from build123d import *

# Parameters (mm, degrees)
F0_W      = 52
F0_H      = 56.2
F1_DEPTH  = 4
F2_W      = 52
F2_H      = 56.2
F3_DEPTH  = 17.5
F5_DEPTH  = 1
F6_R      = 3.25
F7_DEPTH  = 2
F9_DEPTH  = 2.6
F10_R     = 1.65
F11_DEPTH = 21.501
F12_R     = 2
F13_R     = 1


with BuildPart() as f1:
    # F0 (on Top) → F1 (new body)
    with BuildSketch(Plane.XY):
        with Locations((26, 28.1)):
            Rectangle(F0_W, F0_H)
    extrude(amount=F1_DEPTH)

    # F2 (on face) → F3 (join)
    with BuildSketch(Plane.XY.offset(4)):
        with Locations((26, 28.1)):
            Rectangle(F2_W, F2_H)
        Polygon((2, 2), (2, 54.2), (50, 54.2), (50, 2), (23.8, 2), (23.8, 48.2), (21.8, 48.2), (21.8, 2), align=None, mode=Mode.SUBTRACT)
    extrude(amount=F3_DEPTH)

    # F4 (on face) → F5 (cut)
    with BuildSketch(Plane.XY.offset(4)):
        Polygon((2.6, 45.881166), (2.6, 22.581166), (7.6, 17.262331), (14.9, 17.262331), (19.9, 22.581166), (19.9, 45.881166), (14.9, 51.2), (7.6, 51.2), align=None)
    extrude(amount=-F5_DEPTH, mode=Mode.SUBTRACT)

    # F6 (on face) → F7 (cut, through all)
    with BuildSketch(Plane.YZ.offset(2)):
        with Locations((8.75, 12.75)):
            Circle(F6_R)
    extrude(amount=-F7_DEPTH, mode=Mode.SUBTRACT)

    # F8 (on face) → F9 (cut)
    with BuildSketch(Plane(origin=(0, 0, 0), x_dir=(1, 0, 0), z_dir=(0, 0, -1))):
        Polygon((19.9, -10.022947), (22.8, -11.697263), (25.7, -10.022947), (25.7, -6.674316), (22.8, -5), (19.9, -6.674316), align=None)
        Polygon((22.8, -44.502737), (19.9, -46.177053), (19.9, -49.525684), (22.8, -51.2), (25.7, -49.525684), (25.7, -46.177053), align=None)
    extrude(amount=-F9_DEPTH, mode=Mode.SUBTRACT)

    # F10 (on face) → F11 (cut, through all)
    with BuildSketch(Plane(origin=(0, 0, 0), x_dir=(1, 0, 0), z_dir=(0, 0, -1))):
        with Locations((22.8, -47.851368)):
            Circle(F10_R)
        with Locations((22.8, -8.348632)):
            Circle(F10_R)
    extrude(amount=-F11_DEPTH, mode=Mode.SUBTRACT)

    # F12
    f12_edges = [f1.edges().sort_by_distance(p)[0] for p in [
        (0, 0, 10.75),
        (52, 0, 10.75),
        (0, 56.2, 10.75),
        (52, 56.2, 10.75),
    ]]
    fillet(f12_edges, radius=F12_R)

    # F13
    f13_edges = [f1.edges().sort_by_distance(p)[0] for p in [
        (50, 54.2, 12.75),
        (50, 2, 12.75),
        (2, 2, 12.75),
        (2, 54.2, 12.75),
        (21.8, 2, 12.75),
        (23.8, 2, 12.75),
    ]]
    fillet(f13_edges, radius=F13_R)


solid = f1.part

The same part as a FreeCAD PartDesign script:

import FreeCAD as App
import Part
import Sketcher
from FreeCAD import Vector
Q = App.Units.Quantity


def edges_at(feature, points):
    """Names of the edges that pass closest to the given points."""
    edges = feature.Shape.Edges
    near = lambda p: min(range(len(edges)), key=lambda i: edges[i].distToShape(Part.Vertex(*p))[0])
    return sorted({f"Edge{near(p) + 1}" for p in points})

doc = App.newDocument("Part")
body = doc.addObject("PartDesign::Body", "Body")

# Sketch on XY plane
sketch1 = body.newObject("Sketcher::SketchObject", "Sketch")
sketch1.AttachmentSupport = (doc.getObject("XY_Plane"), [""])
sketch1.MapMode = "FlatFace"
sketch1.addGeometry([
    Part.LineSegment(Vector(0, 56, 0), Vector(0, 0, 0)),
    Part.LineSegment(Vector(0, 0, 0), Vector(52, 0, 0)),
    Part.LineSegment(Vector(52, 0, 0), Vector(52, 56, 0)),
    Part.LineSegment(Vector(52, 56, 0), Vector(0, 56, 0)),
], False)
sketch1.addConstraint([
    Sketcher.Constraint("Coincident", 0, 2, 1, 1),
    Sketcher.Constraint("Coincident", 1, 2, 2, 1),
    Sketcher.Constraint("Coincident", 2, 2, 3, 1),
    Sketcher.Constraint("Coincident", 3, 2, 0, 1),
    Sketcher.Constraint("Vertical", 0),
    Sketcher.Constraint("Horizontal", 1),
    Sketcher.Constraint("Vertical", 2),
    Sketcher.Constraint("Horizontal", 3),
    Sketcher.Constraint("Coincident", 0, 2, -1, 1),
    Sketcher.Constraint("DistanceX", 1, 1, 1, 2, 52.0),
    Sketcher.Constraint("DistanceY", 0, 2, 0, 1, 56.2),
])
pad1 = body.newObject("PartDesign::Pad", "Pad")
pad1.Profile = sketch1
pad1.Length = 4

# Sketch on XY plane
sketch2 = body.newObject("Sketcher::SketchObject", "Sketch001")
sketch2.AttachmentSupport = (doc.getObject("XY_Plane"), [""])
sketch2.MapMode = "FlatFace"
sketch2.AttachmentOffset = App.Placement(Vector(0, 0, 4), App.Rotation())
sketch2.addGeometry([
    Part.LineSegment(Vector(0, 56.2, 0), Vector(0, 0, 0)),  # 0
    Part.LineSegment(Vector(0, 0, 0), Vector(52, 0, 0)),  # 1
    Part.LineSegment(Vector(52, 0, 0), Vector(52, 56.2, 0)),  # 2
    Part.LineSegment(Vector(52, 56.2, 0), Vector(0, 56.2, 0)),  # 3
    Part.LineSegment(Vector(21.8, 2, 0), Vector(2, 2, 0)),  # 4
    Part.LineSegment(Vector(2, 2, 0), Vector(2, 54.2, 0)),  # 5
    Part.LineSegment(Vector(2, 54.2, 0), Vector(50, 54.2, 0)),  # 6
    Part.LineSegment(Vector(50, 54.2, 0), Vector(50, 2, 0)),  # 7
    Part.LineSegment(Vector(50, 2, 0), Vector(23.8, 2, 0)),  # 8
    Part.LineSegment(Vector(23.8, 2, 0), Vector(23.8, 48.2, 0)),  # 9
    Part.LineSegment(Vector(23.8, 48.2, 0), Vector(21.8, 48.2, 0)),  # 10
    Part.LineSegment(Vector(21.8, 48.2, 0), Vector(21.8, 2, 0)),  # 11
], False)
sketch2.addConstraint([
    Sketcher.Constraint("Coincident", 0, 2, 1, 1),
    Sketcher.Constraint("Coincident", 1, 2, 2, 1),
    Sketcher.Constraint("Coincident", 2, 2, 3, 1),
    Sketcher.Constraint("Coincident", 3, 2, 0, 1),
    Sketcher.Constraint("Coincident", 4, 2, 5, 1),
    Sketcher.Constraint("Coincident", 5, 2, 6, 1),
    Sketcher.Constraint("Coincident", 6, 2, 7, 1),
    Sketcher.Constraint("Coincident", 7, 2, 8, 1),
    Sketcher.Constraint("Coincident", 8, 2, 9, 1),
    Sketcher.Constraint("Coincident", 9, 2, 10, 1),
    Sketcher.Constraint("Coincident", 10, 2, 11, 1),
    Sketcher.Constraint("Coincident", 11, 2, 4, 1),
    Sketcher.Constraint("Vertical", 0),
    Sketcher.Constraint("Horizontal", 1),
    Sketcher.Constraint("Vertical", 2),
    Sketcher.Constraint("Horizontal", 3),
    Sketcher.Constraint("Horizontal", 4),
    Sketcher.Constraint("Vertical", 5),
    Sketcher.Constraint("Horizontal", 6),
    Sketcher.Constraint("Vertical", 7),
    Sketcher.Constraint("Horizontal", 8),
    Sketcher.Constraint("Vertical", 9),
    Sketcher.Constraint("Horizontal", 10),
    Sketcher.Constraint("Vertical", 11),
    Sketcher.Constraint("Coincident", 0, 2, -1, 1),
    Sketcher.Constraint("Horizontal", 4, 2, 7, 2),
    Sketcher.Constraint("DistanceX", 1, 1, 1, 2, 52.0),
    Sketcher.Constraint("DistanceX", 6, 1, 6, 2, 48.0),
    Sketcher.Constraint("DistanceX", 10, 2, 10, 1, 2.0),
    Sketcher.Constraint("DistanceX", 4, 2, 4, 1, 19.8),
    Sketcher.Constraint("DistanceY", 0, 2, 0, 1, 56.2),
    Sketcher.Constraint("DistanceY", 5, 1, 5, 2, 52.2),
    Sketcher.Constraint("DistanceY", 9, 1, 9, 2, 46.2),
    Sketcher.Constraint("DistanceX", -1, 1, 4, 2, 2.0),
    Sketcher.Constraint("DistanceY", -1, 1, 4, 2, 2.0),
])
pad2 = body.newObject("PartDesign::Pad", "Pad001")
pad2.Profile = sketch2
pad2.Length = 17.5

# Sketch on XY plane
sketch3 = body.newObject("Sketcher::SketchObject", "Sketch002")
sketch3.AttachmentSupport = (doc.getObject("XY_Plane"), [""])
sketch3.MapMode = "FlatFace"
sketch3.AttachmentOffset = App.Placement(Vector(0, 0, 4), App.Rotation())
sketch3.addGeometry([
    Part.LineSegment(Vector(3, 46, 0), Vector(3, 23, 0)),  # 0
    Part.LineSegment(Vector(3, 23, 0), Vector(8, 17, 0)),  # 1
    Part.LineSegment(Vector(8, 17, 0), Vector(15, 17, 0)),  # 2
    Part.LineSegment(Vector(15, 17, 0), Vector(20, 23, 0)),  # 3
    Part.LineSegment(Vector(20, 23, 0), Vector(20, 46, 0)),  # 4
    Part.LineSegment(Vector(20, 46, 0), Vector(15, 51, 0)),  # 5
    Part.LineSegment(Vector(15, 51, 0), Vector(8, 51, 0)),  # 6
    Part.LineSegment(Vector(8, 51, 0), Vector(3, 46, 0)),  # 7
], False)
sketch3.addConstraint([
    Sketcher.Constraint("Coincident", 0, 2, 1, 1),
    Sketcher.Constraint("Coincident", 1, 2, 2, 1),
    Sketcher.Constraint("Coincident", 2, 2, 3, 1),
    Sketcher.Constraint("Coincident", 3, 2, 4, 1),
    Sketcher.Constraint("Coincident", 4, 2, 5, 1),
    Sketcher.Constraint("Coincident", 5, 2, 6, 1),
    Sketcher.Constraint("Coincident", 6, 2, 7, 1),
    Sketcher.Constraint("Coincident", 7, 2, 0, 1),
    Sketcher.Constraint("Vertical", 0),
    Sketcher.Constraint("Horizontal", 2),
    Sketcher.Constraint("Vertical", 4),
    Sketcher.Constraint("Horizontal", 6),
    Sketcher.Constraint("Parallel", 1, 5),
    Sketcher.Constraint("Parallel", 3, 7),
    Sketcher.Constraint("Horizontal", 0, 2, 3, 2),
    Sketcher.Constraint("Horizontal", 4, 2, 7, 2),
    Sketcher.Constraint("Vertical", 2, 2, 5, 2),
    Sketcher.Constraint("Vertical", 1, 2, 6, 2),
    Sketcher.Constraint("DistanceX", 2, 1, 2, 2, 7.3),
    Sketcher.Constraint("DistanceY", 0, 2, 0, 1, 23.3),
    Sketcher.Constraint("DistanceX", 0, 2, 1, 2, 5.0),
    Sketcher.Constraint("Distance", 1, 7.3),
    Sketcher.Constraint("DistanceX", -1, 1, 0, 2, 2.6),
    Sketcher.Constraint("DistanceY", -1, 1, 5, 2, 51.2),
])
pocket1 = body.newObject("PartDesign::Pocket", "Pocket")
pocket1.Profile = sketch3
pocket1.Length = 1

# Sketch on YZ plane
sketch4 = body.newObject("Sketcher::SketchObject", "Sketch003")
sketch4.AttachmentSupport = (doc.getObject("YZ_Plane"), [""])
sketch4.MapMode = "FlatFace"
sketch4.AttachmentOffset = App.Placement(Vector(0, 0, 2), App.Rotation())
sketch4.addGeometry(Part.Circle(Vector(8.8, 12.8, 0), Vector(0, 0, 1), 3.2), False)
sketch4.addConstraint([
    Sketcher.Constraint("Diameter", 0, 6.5),
    Sketcher.Constraint("DistanceX", -1, 1, 0, 3, 8.75),
    Sketcher.Constraint("DistanceY", -1, 1, 0, 3, 12.75),
])
pocket2 = body.newObject("PartDesign::Pocket", "Pocket001")
pocket2.Profile = sketch4
pocket2.Type = "ThroughAll"

# Sketch on XY plane
sketch5 = body.newObject("Sketcher::SketchObject", "Sketch004")
sketch5.AttachmentSupport = (doc.getObject("XY_Plane"), [""])
sketch5.MapMode = "FlatFace"
sketch5.addGeometry([
    Part.LineSegment(Vector(19.9, 10, 0), Vector(22.8, 11.7, 0)),  # 0
    Part.LineSegment(Vector(22.8, 11.7, 0), Vector(25.7, 10, 0)),  # 1
    Part.LineSegment(Vector(25.7, 10, 0), Vector(25.7, 6.7, 0)),  # 2
    Part.LineSegment(Vector(25.7, 6.7, 0), Vector(22.8, 5, 0)),  # 3
    Part.LineSegment(Vector(22.8, 5, 0), Vector(19.9, 6.7, 0)),  # 4
    Part.LineSegment(Vector(19.9, 6.7, 0), Vector(19.9, 10, 0)),  # 5
    Part.LineSegment(Vector(22.8, 44.5, 0), Vector(19.9, 46.2, 0)),  # 6
    Part.LineSegment(Vector(19.9, 46.2, 0), Vector(19.9, 49.5, 0)),  # 7
    Part.LineSegment(Vector(19.9, 49.5, 0), Vector(22.8, 51.2, 0)),  # 8
    Part.LineSegment(Vector(22.8, 51.2, 0), Vector(25.7, 49.5, 0)),  # 9
    Part.LineSegment(Vector(25.7, 49.5, 0), Vector(25.7, 46.2, 0)),  # 10
    Part.LineSegment(Vector(25.7, 46.2, 0), Vector(22.8, 44.5, 0)),  # 11
], False)
sketch5.addConstraint([
    Sketcher.Constraint("Coincident", 0, 2, 1, 1),
    Sketcher.Constraint("Coincident", 1, 2, 2, 1),
    Sketcher.Constraint("Coincident", 2, 2, 3, 1),
    Sketcher.Constraint("Coincident", 3, 2, 4, 1),
    Sketcher.Constraint("Coincident", 4, 2, 5, 1),
    Sketcher.Constraint("Coincident", 5, 2, 0, 1),
    Sketcher.Constraint("Coincident", 6, 2, 7, 1),
    Sketcher.Constraint("Coincident", 7, 2, 8, 1),
    Sketcher.Constraint("Coincident", 8, 2, 9, 1),
    Sketcher.Constraint("Coincident", 9, 2, 10, 1),
    Sketcher.Constraint("Coincident", 10, 2, 11, 1),
    Sketcher.Constraint("Coincident", 11, 2, 6, 1),
    Sketcher.Constraint("Vertical", 2),
    Sketcher.Constraint("Vertical", 5),
    Sketcher.Constraint("Vertical", 7),
    Sketcher.Constraint("Vertical", 10),
    Sketcher.Constraint("Parallel", 0, 3),
    Sketcher.Constraint("Parallel", 1, 4),
    Sketcher.Constraint("Parallel", 4, 6),
    Sketcher.Constraint("Parallel", 3, 8),
    Sketcher.Constraint("Parallel", 6, 9),
    Sketcher.Constraint("Parallel", 8, 11),
    Sketcher.Constraint("Horizontal", 2, 2, 4, 2),
    Sketcher.Constraint("Horizontal", 1, 2, 5, 2),
    Sketcher.Constraint("Horizontal", 7, 2, 9, 2),
    Sketcher.Constraint("Horizontal", 6, 2, 10, 2),
    Sketcher.Constraint("Vertical", 0, 2, 3, 2),
    Sketcher.Constraint("Vertical", 5, 2, 6, 2),
    Sketcher.Constraint("Vertical", 3, 2, 8, 2),
    Sketcher.Constraint("Equal", 5, 7),
    Sketcher.Constraint("Angle", 0, Q("30.000003 deg")),
    Sketcher.Constraint("DistanceY", -1, 1, 3, 2, 5.0),
    Sketcher.Constraint("DistanceX", -1, 1, 0, 2, 22.8),
    Sketcher.Constraint("DistanceX", -1, 1, 1, 2, 25.7),
    Sketcher.Constraint("DistanceY", -1, 1, 8, 2, 51.2),
    Sketcher.Constraint("DistanceY", 2, 2, 2, 1, 3.348631),
])
pocket3 = body.newObject("PartDesign::Pocket", "Pocket002")
pocket3.Profile = sketch5
pocket3.Length = 2.6
pocket3.Reversed = True

# Sketch on XY plane
sketch6 = body.newObject("Sketcher::SketchObject", "Sketch005")
sketch6.AttachmentSupport = (doc.getObject("XY_Plane"), [""])
sketch6.MapMode = "FlatFace"
sketch6.addGeometry([
    Part.Circle(Vector(22.8, 47.9, 0), Vector(0, 0, 1), 1.6),
    Part.Circle(Vector(22.8, 8.3, 0), Vector(0, 0, 1), 1.6),
], False)
sketch6.addConstraint([
    Sketcher.Constraint("Equal", 0, 1),
    Sketcher.Constraint("Vertical", 0, 3, 1, 3),
    Sketcher.Constraint("Diameter", 0, 3.3),
    Sketcher.Constraint("DistanceX", -1, 1, 0, 3, 22.8),
    Sketcher.Constraint("DistanceY", -1, 1, 0, 3, 47.851368),
    Sketcher.Constraint("DistanceY", -1, 1, 1, 3, 8.348632),
])
pocket4 = body.newObject("PartDesign::Pocket", "Pocket003")
pocket4.Profile = sketch6
pocket4.Type = "ThroughAll"
pocket4.Reversed = True
doc.recompute()

fillet = body.newObject("PartDesign::Fillet", "Fillet")
fillet.Base = (pocket4, edges_at(pocket4, [
    (0, 0, 10.75),
    (52, 0, 10.75),
    (0, 56.2, 10.75),
    (52, 56.2, 10.75),
]))
fillet.Radius = 2
doc.recompute()

fillet2 = body.newObject("PartDesign::Fillet", "Fillet001")
fillet2.Base = (fillet, edges_at(fillet, [
    (50, 54.2, 12.75),
    (50, 2, 12.75),
    (2, 2, 12.75),
    (2, 54.2, 12.75),
    (21.8, 2, 12.75),
    (23.8, 2, 12.75),
]))
fillet2.Radius = 1

doc.recompute()
